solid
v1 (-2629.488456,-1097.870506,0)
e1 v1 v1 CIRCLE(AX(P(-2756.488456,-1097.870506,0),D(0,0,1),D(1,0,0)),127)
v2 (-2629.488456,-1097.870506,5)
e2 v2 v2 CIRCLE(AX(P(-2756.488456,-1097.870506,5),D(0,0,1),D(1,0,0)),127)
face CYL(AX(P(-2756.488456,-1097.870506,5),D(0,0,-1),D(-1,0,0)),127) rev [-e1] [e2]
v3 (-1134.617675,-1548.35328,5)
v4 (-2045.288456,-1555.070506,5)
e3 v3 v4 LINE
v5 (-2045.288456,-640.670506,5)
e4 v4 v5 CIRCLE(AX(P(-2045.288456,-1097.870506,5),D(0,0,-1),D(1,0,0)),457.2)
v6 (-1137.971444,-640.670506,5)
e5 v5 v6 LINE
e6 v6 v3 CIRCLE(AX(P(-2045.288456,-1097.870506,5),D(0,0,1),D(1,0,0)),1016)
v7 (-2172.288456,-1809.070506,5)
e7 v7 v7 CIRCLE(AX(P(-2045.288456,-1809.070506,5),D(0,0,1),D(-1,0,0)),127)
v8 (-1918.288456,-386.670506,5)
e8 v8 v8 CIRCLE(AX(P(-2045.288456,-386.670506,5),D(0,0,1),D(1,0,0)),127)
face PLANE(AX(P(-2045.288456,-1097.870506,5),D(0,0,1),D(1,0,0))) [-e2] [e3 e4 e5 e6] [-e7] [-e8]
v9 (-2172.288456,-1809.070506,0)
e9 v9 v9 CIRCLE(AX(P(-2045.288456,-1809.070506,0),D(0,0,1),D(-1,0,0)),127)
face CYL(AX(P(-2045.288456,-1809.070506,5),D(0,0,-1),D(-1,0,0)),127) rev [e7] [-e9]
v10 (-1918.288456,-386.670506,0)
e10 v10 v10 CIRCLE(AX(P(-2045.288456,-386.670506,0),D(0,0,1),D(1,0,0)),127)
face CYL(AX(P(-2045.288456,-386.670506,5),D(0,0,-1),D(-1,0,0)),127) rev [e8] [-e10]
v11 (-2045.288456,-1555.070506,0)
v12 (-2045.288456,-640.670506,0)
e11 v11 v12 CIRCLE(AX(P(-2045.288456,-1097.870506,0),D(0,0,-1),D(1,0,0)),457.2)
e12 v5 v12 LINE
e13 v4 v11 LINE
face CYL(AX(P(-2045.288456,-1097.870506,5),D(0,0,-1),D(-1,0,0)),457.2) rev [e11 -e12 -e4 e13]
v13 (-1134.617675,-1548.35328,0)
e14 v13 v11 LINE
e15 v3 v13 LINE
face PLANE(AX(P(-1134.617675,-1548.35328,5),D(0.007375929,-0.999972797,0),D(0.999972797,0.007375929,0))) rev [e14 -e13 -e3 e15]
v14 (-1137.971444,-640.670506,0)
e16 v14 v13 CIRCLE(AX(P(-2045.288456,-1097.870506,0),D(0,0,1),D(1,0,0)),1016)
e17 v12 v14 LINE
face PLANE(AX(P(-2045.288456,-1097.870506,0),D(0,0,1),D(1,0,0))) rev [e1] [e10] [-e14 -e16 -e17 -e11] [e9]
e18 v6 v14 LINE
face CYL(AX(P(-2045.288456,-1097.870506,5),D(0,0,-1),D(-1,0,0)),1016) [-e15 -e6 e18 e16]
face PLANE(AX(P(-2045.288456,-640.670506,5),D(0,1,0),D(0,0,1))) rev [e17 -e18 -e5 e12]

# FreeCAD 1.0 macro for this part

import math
import FreeCAD as App
import Part
import Sketcher
from FreeCAD import Vector
Q = App.Units.Quantity

doc = App.newDocument("Part")
params = doc.addObject("Spreadsheet::Sheet", "Params")
for row, (alias, value) in enumerate([
    ("sketch1_diameter", "10 in"),
    ("sketch1_radius", "40 in"),
    ("sketch1_radius2", "18 in"),
    ("pad1_length", "5 mm"),
], start=1):
    params.set(f"A{row}", alias)
    params.set(f"B{row}", "=" + value)
    params.setAlias(f"B{row}", alias)

body = doc.addObject("PartDesign::Body", "Body")

sketch1 = doc.addObject("Sketcher::SketchObject", "Sketch")
body.addObject(sketch1)
sketch1.AttachmentSupport = (doc.XY_Plane, [""])
sketch1.MapMode = "FlatFace"
sketch1.addGeometry([
    Part.LineSegment(Vector(-2045.288456, -640.670506, 0), Vector(-1137.971444, -640.670506, 0)),
    Part.ArcOfCircle(Part.Circle(Vector(-2045.288456, -1097.870506, 0), Vector(0, 0, 1), 1016), math.radians(26.743684), math.radians(333.679715)),
    Part.LineSegment(Vector(-1134.617675, -1548.35328, 0), Vector(-2045.288456, -1555.070506, 0)),
    Part.ArcOfCircle(Part.Circle(Vector(-2045.288456, -1097.870506, 0), Vector(0, 0, 1), 457.2), math.radians(90), math.radians(270)),
    Part.Circle(Vector(-2756.488456, -1097.870506, 0), Vector(0, 0, 1), 127),
    Part.Circle(Vector(-2045.288456, -1809.070506, 0), Vector(0, 0, 1), 127),
    Part.Circle(Vector(-2045.288456, -386.670506, 0), Vector(0, 0, 1), 127),
], False)
sketch1.addConstraint([
    Sketcher.Constraint("Coincident", 0, 2, 1, 1),
    Sketcher.Constraint("Coincident", 1, 2, 2, 1),
    Sketcher.Constraint("Coincident", 2, 2, 3, 2),
    Sketcher.Constraint("Tangent", 3, 1, 0, 1),
    Sketcher.Constraint("Horizontal", 0),
    Sketcher.Constraint("Coincident", 3, 3, 1, 3),
    Sketcher.Constraint("Equal", 4, 5),
    Sketcher.Constraint("Equal", 5, 6),
    Sketcher.Constraint("Horizontal", 3, 3, 4, 3),
    Sketcher.Constraint("Vertical", 3, 3, 5, 3),
    Sketcher.Constraint("Vertical", 5, 3, 6, 3),
    Sketcher.Constraint("Vertical", 6, 3, 2, 2),
    Sketcher.Constraint("Diameter", 4, Q("10 in")),
    Sketcher.Constraint("Radius", 1, Q("40 in")),
    Sketcher.Constraint("Radius", 3, Q("18 in")),
    Sketcher.Constraint("DistanceX", 4, 3, 1, 3, Q("28 in")),
    Sketcher.Constraint("DistanceY", 5, 3, 1, 3, Q("28 in")),
    Sketcher.Constraint("DistanceY", 1, 3, 6, 3, Q("28 in")),
    Sketcher.Constraint("Distance", 2, Q("910.695554 mm")),
    Sketcher.Constraint("DistanceX", 1, 3, -1, 1, Q("2045.288456 mm")),
    Sketcher.Constraint("DistanceY", 1, 3, -1, 1, Q("1097.870506 mm")),
])
sketch1.setExpression("Constraints[12]", "Params.sketch1_diameter")
sketch1.setExpression("Constraints[13]", "Params.sketch1_radius")
sketch1.setExpression("Constraints[14]", "Params.sketch1_radius2")
pad1 = doc.addObject("PartDesign::Pad", "Pad")
body.addObject(pad1)
pad1.Profile = sketch1
pad1.setExpression("Length", "Params.pad1_length")

doc.recompute()
